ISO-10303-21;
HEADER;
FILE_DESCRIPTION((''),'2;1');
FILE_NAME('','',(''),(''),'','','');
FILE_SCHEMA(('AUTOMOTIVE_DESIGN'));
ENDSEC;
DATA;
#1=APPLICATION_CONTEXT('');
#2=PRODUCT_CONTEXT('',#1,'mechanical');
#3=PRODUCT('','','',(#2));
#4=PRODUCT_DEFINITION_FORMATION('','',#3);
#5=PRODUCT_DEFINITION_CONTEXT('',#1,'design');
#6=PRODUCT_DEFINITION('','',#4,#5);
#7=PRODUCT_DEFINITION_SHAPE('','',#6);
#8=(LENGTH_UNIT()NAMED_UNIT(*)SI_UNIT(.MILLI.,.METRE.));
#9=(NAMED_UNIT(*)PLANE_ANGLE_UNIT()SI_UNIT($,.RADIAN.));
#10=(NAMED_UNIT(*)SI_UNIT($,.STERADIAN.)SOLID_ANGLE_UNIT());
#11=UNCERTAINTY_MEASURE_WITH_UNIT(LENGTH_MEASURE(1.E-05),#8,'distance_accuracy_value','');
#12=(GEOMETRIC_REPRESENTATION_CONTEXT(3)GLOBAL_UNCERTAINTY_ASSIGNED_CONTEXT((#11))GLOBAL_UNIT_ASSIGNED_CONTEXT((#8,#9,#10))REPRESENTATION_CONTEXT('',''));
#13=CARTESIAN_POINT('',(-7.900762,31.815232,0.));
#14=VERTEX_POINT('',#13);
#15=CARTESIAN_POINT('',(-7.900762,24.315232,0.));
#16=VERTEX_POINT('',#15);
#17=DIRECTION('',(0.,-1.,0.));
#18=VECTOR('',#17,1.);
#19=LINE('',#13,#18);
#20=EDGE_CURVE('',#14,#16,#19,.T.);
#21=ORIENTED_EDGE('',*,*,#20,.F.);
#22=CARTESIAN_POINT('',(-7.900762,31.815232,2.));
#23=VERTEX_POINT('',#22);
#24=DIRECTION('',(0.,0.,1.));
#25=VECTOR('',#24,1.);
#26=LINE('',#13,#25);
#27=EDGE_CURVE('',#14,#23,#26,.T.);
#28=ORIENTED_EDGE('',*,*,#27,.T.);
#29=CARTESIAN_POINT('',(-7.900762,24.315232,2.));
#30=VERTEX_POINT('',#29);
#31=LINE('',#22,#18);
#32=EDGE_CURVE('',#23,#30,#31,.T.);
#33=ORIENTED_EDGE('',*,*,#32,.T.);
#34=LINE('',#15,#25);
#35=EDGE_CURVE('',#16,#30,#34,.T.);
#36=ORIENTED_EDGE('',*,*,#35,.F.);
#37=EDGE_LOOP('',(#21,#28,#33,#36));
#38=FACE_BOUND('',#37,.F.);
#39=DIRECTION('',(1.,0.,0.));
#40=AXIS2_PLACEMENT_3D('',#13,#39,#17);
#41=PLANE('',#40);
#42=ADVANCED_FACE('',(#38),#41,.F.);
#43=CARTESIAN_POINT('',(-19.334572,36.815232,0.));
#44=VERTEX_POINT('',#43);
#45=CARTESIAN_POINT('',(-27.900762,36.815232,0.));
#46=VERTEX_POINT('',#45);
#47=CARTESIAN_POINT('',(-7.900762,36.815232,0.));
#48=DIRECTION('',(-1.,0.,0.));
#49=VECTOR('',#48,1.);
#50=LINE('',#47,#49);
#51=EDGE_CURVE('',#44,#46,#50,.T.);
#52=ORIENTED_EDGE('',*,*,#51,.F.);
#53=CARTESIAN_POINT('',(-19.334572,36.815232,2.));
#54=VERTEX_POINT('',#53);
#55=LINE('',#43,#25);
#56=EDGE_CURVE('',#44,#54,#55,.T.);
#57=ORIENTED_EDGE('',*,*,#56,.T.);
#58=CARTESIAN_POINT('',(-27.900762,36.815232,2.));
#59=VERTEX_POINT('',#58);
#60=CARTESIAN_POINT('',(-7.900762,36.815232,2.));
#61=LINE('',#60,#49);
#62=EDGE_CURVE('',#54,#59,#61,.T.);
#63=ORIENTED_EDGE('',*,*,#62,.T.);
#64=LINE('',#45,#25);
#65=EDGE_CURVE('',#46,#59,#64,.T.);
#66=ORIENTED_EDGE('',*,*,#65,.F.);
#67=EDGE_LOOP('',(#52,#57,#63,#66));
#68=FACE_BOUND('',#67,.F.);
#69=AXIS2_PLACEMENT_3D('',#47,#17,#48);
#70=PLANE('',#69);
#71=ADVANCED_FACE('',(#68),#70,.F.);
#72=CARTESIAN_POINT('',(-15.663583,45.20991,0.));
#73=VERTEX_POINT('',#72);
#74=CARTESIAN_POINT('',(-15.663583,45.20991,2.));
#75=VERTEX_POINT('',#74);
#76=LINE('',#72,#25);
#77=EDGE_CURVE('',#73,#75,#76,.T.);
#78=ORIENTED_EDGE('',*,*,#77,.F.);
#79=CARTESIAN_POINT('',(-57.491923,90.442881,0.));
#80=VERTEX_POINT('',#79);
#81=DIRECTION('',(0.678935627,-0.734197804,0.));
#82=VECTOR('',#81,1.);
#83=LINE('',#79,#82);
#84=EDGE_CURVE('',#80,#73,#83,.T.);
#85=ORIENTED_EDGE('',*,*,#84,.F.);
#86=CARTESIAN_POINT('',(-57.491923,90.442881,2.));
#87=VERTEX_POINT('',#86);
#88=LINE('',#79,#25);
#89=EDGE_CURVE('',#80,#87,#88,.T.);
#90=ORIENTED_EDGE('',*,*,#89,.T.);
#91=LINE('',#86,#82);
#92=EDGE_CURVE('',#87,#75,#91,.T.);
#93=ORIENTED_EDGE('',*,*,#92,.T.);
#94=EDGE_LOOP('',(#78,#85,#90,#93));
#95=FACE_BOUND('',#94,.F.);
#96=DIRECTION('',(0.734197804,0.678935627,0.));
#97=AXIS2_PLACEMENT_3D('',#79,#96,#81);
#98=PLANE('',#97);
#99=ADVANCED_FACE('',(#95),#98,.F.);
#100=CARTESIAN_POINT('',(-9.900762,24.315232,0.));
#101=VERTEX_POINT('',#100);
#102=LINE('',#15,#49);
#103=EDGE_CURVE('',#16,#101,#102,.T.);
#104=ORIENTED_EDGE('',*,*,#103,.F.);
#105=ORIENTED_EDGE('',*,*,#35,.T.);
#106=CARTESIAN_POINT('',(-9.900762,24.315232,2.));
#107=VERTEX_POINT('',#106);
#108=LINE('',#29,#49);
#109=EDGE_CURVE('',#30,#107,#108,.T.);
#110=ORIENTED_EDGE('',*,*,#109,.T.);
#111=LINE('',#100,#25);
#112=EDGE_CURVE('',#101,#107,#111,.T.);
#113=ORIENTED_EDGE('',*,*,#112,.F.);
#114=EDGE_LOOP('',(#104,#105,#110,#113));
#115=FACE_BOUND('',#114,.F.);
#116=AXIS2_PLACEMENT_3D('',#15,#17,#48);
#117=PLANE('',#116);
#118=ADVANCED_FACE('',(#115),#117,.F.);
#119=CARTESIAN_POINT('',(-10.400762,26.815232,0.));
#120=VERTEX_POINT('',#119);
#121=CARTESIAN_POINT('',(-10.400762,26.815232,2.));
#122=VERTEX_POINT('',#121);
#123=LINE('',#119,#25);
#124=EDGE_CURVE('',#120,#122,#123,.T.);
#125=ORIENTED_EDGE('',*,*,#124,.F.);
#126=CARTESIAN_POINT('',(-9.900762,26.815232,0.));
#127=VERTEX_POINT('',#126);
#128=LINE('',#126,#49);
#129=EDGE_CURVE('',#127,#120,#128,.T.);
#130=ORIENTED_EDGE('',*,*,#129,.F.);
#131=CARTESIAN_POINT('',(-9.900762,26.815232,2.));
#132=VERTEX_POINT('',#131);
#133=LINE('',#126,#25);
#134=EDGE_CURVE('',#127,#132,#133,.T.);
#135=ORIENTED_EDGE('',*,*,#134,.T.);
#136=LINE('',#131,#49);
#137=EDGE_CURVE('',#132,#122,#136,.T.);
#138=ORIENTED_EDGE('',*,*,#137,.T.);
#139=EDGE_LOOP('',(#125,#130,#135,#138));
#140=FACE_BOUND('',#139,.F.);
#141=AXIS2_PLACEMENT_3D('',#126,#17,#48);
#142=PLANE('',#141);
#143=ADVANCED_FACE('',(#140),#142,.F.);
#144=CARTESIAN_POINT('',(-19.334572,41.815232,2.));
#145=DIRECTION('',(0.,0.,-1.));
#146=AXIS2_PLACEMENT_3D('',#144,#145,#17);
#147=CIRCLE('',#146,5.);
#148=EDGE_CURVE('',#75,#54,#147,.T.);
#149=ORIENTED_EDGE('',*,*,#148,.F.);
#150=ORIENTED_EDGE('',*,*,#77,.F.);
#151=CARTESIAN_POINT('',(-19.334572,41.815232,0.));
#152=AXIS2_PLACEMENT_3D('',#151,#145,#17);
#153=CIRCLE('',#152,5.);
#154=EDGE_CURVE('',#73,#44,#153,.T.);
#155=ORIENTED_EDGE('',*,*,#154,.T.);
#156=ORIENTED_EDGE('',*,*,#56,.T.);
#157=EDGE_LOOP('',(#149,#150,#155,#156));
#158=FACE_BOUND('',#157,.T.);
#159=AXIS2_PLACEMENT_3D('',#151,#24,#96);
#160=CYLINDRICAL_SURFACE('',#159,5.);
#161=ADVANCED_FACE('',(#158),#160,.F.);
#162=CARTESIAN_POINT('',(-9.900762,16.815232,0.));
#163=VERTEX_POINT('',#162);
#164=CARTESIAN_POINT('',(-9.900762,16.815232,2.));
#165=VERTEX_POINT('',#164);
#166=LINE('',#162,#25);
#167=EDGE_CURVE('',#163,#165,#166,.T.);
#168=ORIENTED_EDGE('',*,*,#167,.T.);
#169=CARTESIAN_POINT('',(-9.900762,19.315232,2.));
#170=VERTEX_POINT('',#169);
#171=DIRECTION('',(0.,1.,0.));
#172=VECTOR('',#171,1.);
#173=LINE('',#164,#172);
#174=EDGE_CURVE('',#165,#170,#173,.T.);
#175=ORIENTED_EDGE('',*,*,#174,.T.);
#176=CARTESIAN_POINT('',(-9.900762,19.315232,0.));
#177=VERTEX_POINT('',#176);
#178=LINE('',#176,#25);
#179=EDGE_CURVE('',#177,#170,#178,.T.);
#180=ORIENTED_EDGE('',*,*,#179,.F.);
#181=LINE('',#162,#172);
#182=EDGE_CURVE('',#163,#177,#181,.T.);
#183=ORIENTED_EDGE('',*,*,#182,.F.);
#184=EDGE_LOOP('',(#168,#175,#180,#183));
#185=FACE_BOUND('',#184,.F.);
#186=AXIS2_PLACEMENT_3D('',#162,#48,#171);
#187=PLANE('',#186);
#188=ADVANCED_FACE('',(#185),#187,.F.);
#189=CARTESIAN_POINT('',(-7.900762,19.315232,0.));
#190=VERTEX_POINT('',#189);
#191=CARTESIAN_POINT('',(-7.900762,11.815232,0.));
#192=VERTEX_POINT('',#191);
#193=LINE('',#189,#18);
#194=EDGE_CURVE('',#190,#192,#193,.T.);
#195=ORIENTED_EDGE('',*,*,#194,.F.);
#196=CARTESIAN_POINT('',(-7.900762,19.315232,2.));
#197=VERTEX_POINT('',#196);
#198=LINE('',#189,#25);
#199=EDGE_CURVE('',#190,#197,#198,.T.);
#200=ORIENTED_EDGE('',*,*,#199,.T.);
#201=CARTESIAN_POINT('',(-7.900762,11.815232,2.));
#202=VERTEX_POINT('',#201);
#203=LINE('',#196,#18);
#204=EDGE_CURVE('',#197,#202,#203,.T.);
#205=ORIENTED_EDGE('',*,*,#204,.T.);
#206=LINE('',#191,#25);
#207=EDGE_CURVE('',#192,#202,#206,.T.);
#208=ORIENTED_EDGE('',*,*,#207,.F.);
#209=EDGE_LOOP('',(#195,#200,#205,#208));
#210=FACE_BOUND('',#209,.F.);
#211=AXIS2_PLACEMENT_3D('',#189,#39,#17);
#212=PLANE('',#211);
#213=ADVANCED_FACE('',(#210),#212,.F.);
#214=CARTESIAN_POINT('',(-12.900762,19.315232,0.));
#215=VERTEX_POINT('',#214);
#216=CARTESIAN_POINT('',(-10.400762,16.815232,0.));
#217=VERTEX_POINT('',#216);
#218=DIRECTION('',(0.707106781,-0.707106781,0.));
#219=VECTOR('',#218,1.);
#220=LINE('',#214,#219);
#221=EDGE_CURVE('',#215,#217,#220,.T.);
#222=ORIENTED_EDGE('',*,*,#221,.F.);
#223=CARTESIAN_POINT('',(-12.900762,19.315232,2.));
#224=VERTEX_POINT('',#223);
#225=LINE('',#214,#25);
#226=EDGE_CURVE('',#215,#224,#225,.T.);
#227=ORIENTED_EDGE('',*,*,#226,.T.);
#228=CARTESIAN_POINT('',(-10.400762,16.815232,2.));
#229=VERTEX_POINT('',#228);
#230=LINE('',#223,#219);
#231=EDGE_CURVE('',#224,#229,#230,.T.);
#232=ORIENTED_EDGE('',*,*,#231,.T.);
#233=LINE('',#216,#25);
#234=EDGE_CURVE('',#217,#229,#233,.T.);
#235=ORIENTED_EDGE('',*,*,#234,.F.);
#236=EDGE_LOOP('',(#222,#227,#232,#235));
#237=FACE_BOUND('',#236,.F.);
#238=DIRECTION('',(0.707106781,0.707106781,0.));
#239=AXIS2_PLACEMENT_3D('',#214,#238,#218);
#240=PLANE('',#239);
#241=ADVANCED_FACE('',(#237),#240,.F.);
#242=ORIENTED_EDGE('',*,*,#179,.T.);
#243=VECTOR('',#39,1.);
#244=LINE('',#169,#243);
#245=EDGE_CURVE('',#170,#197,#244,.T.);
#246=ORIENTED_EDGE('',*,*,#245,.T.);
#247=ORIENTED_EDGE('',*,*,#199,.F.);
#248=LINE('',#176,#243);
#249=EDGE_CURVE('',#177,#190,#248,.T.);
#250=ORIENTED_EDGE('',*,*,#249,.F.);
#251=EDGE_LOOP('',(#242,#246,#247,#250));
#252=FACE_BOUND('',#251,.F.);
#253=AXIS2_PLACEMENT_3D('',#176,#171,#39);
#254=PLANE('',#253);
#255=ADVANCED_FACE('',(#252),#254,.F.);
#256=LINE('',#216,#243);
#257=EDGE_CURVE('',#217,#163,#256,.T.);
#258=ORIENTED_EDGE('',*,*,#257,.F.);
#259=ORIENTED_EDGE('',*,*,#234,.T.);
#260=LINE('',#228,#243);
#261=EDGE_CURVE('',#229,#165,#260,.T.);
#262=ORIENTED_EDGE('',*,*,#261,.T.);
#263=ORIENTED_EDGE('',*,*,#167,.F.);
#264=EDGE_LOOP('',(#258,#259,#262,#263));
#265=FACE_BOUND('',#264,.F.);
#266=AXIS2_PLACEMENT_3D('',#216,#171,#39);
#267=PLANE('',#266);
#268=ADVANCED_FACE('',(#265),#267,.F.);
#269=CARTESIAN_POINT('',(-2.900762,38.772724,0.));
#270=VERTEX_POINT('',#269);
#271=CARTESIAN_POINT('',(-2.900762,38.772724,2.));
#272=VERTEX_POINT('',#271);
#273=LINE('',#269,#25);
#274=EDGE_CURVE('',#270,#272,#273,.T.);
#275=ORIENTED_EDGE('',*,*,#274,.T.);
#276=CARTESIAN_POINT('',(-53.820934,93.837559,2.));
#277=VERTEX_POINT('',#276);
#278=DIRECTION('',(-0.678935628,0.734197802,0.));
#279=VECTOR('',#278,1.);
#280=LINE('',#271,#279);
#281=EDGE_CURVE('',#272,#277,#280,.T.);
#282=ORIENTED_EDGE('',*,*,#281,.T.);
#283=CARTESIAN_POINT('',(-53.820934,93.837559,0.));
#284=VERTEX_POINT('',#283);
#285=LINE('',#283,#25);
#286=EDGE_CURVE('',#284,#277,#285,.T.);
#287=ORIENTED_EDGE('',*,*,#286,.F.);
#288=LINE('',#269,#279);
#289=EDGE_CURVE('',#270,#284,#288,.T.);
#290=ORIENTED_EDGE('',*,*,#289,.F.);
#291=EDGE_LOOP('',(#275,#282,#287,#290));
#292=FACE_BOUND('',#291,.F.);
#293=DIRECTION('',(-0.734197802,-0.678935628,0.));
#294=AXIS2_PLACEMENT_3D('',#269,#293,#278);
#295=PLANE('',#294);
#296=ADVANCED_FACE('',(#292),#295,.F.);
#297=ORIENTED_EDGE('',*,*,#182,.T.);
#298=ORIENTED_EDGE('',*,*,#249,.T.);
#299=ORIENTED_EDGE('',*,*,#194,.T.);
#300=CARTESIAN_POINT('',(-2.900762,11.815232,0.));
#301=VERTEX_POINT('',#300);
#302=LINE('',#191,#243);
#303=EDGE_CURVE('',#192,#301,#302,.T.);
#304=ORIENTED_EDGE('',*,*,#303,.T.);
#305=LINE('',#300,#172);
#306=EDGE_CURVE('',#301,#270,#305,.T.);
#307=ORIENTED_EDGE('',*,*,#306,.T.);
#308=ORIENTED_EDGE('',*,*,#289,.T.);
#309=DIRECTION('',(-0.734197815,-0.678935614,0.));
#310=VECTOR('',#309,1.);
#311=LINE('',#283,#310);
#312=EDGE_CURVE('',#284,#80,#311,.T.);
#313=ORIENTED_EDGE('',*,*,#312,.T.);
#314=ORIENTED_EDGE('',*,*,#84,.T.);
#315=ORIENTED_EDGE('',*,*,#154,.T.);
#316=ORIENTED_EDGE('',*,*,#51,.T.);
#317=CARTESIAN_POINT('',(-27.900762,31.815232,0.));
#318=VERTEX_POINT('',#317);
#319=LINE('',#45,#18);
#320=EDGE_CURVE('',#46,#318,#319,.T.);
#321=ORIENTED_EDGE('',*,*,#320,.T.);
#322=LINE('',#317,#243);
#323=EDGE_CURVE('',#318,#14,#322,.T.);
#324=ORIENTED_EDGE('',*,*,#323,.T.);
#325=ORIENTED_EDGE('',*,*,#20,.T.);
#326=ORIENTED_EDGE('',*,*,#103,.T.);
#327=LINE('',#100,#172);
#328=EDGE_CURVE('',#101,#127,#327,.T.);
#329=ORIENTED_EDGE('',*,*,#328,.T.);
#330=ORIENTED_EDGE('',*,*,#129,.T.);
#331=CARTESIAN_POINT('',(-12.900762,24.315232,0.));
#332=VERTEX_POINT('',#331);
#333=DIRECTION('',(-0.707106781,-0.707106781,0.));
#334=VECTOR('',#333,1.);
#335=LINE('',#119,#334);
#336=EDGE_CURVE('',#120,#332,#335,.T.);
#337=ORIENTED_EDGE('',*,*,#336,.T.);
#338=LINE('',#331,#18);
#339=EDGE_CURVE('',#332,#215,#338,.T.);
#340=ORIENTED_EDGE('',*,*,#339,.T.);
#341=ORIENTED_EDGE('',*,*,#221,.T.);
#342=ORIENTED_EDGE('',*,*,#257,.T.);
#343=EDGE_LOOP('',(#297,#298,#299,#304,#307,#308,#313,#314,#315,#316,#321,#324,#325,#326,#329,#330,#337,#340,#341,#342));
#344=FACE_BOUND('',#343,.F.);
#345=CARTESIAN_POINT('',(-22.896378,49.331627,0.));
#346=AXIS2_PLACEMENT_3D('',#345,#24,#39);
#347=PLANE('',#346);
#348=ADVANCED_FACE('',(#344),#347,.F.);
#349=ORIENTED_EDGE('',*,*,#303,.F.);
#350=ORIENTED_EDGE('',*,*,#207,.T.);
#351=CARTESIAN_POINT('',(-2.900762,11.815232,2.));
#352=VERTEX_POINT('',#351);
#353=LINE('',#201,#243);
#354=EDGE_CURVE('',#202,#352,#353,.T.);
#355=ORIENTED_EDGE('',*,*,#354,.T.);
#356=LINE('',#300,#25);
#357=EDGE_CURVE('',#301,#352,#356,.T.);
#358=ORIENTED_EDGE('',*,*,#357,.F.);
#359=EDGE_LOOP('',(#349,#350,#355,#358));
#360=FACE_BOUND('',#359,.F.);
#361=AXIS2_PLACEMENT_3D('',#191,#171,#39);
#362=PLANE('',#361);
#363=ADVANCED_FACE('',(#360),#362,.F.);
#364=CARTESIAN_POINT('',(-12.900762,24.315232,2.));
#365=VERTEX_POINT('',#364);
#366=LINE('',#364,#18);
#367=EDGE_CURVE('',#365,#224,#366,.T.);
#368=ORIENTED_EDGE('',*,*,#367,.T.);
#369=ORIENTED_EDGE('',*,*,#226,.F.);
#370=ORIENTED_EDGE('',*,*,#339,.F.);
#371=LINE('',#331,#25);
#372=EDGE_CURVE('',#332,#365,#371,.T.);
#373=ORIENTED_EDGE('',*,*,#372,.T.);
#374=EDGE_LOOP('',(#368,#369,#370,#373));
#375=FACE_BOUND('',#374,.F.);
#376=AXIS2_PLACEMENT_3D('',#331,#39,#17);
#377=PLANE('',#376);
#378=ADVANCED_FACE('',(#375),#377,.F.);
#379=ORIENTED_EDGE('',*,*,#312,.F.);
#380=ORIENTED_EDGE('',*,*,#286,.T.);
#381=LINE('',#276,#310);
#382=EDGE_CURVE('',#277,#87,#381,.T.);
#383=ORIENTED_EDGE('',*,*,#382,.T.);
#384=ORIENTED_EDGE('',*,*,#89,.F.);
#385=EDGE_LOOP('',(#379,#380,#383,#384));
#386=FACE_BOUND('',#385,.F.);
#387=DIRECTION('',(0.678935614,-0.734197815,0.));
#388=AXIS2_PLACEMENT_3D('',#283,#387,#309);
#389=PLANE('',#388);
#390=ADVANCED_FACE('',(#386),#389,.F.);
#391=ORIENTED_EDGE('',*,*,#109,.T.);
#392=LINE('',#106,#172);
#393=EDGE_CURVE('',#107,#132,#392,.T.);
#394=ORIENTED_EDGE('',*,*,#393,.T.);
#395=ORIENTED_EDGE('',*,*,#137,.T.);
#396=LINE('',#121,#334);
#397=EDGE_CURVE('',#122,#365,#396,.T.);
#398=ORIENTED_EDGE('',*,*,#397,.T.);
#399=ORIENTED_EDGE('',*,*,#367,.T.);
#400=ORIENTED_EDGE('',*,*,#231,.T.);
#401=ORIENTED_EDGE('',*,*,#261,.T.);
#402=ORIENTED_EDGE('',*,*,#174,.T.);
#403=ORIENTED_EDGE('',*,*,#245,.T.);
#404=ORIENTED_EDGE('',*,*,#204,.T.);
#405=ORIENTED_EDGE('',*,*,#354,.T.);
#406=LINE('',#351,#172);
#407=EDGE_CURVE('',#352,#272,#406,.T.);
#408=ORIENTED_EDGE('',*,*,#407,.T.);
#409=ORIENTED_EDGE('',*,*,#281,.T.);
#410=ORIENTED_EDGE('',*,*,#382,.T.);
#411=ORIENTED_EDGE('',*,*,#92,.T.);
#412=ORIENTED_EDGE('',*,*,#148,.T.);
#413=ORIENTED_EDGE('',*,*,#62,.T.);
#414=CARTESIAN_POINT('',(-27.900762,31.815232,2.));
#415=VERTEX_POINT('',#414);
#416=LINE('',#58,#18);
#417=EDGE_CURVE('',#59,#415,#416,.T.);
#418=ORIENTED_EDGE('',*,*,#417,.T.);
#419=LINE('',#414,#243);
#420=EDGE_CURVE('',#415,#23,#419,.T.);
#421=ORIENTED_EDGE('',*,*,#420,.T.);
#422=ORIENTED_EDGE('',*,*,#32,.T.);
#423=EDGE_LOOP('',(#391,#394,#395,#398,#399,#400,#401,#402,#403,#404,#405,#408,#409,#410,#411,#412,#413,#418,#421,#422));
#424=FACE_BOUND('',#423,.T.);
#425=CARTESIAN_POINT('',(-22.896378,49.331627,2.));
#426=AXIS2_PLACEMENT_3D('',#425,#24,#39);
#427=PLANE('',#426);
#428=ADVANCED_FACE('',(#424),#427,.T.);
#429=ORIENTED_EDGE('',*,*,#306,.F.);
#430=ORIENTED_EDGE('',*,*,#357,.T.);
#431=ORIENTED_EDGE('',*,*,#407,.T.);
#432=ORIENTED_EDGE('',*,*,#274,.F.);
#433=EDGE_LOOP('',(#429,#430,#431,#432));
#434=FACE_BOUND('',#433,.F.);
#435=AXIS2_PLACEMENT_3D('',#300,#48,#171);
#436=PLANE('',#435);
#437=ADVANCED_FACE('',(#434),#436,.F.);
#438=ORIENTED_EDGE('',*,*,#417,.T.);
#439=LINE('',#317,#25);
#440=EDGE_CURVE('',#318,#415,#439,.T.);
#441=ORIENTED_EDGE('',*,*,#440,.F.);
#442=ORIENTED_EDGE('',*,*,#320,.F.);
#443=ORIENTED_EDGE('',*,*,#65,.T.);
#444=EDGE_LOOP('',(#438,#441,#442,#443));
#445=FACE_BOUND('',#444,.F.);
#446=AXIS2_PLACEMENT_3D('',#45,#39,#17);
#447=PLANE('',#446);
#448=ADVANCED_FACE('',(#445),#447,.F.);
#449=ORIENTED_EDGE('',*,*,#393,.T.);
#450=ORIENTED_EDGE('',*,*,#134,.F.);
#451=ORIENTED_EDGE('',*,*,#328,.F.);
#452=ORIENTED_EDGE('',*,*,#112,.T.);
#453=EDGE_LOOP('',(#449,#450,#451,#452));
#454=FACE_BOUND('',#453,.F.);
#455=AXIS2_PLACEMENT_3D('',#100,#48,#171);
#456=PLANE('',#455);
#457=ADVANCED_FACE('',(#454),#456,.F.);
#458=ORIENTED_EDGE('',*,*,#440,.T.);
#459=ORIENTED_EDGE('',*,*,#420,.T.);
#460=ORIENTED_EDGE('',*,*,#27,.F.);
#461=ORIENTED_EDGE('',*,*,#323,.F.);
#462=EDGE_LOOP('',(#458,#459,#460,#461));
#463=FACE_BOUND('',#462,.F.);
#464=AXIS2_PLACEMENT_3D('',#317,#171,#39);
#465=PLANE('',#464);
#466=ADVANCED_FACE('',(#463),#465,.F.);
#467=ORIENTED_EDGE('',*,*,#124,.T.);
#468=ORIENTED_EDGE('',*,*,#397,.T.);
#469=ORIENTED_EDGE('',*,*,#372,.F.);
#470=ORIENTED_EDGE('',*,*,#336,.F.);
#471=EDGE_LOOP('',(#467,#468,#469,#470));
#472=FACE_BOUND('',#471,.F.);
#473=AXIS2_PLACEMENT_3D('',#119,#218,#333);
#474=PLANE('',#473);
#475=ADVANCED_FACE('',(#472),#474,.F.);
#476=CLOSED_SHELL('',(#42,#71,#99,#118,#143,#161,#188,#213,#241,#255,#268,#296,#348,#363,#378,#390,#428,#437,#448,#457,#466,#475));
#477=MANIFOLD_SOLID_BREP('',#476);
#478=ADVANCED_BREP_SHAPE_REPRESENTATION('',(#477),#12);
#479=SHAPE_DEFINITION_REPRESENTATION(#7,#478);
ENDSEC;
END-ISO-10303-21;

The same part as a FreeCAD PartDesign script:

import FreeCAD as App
import Part
import Sketcher
from FreeCAD import Vector


def edges_at(feature, points):
    """Names of the edges that pass closest to the given points."""
    edges = feature.Shape.Edges
    near = lambda p: min(range(len(edges)), key=lambda i: edges[i].distToShape(Part.Vertex(*p))[0])
    return sorted({f"Edge{near(p) + 1}" for p in points})


def add_polygon(sketch, points):
    """Adds a closed chain of lines whose ends are joined by coincident constraints."""
    first, n = sketch.GeometryCount, len(points)
    for a, b in zip(points, points[1:] + points[:1]):
        sketch.addGeometry(Part.LineSegment(App.Vector(*a, 0), App.Vector(*b, 0)), False)
    for i in range(n):
        sketch.addConstraint(Sketcher.Constraint("Coincident", first + i, 2, first + (i + 1) % n, 1))

doc = App.newDocument("Part")
params = doc.addObject("Spreadsheet::Sheet", "Params")
for row, (alias, value) in enumerate([
    ("sketch1_width", "20 mm"),
    ("sketch1_width2", "2 mm"),
    ("sketch1_width3", "5 mm"),
    ("sketch1_length", "75 mm"),
    ("sketch1_length2", "5 mm"),
    ("pad1_length", "2 mm"),
    ("fillet_radius", "5 mm"),
], start=1):
    params.set(f"A{row}", alias)
    params.set(f"B{row}", "=" + value)
    params.setAlias(f"B{row}", alias)

body = doc.addObject("PartDesign::Body", "Body")

# Sketch on XY plane
sketch1 = doc.addObject("Sketcher::SketchObject", "Sketch")
body.addObject(sketch1)
sketch1.AttachmentSupport = (doc.XY_Plane, [""])
sketch1.MapMode = "FlatFace"
add_polygon(sketch1, [(-27.9, 36.8), (-27.9, 31.8), (-7.9, 31.8), (-7.9, 24.3), (-9.9, 24.3), (-9.9, 26.8), (-10.4, 26.8), (-12.9, 24.3), (-12.9, 19.3), (-10.4, 16.8), (-9.9, 16.8), (-9.9, 19.3), (-7.9, 19.3), (-7.9, 11.8), (-2.9, 11.8), (-2.9, 38.8), (-53.8, 93.8), (-57.5, 90.4), (-7.9, 36.8)])  # lines 0-18
sketch1.addConstraint([
    Sketcher.Constraint("Vertical", 0),
    Sketcher.Constraint("Horizontal", 1),
    Sketcher.Constraint("Vertical", 2),
    Sketcher.Constraint("Horizontal", 3),
    Sketcher.Constraint("Vertical", 4),
    Sketcher.Constraint("Horizontal", 5),
    Sketcher.Constraint("Vertical", 7),
    Sketcher.Constraint("Horizontal", 9),
    Sketcher.Constraint("Vertical", 10),
    Sketcher.Constraint("Horizontal", 11),
    Sketcher.Constraint("Vertical", 12),
    Sketcher.Constraint("Horizontal", 13),
    Sketcher.Constraint("Vertical", 14),
    Sketcher.Constraint("Horizontal", 18),
    Sketcher.Constraint("Perpendicular", 6, 8),
    Sketcher.Constraint("Perpendicular", 15, 16),
    Sketcher.Constraint("Perpendicular", 16, 17),
    Sketcher.Constraint("Horizontal", 3, 2, 6, 2),
    Sketcher.Constraint("Horizontal", 7, 2, 10, 2),
    Sketcher.Constraint("Vertical", 5, 2, 8, 2),
    Sketcher.Constraint("Vertical", 4, 2, 9, 2),
    Sketcher.Constraint("Vertical", 2, 2, 11, 2),
    Sketcher.Constraint("Vertical", 12, 2, 17, 2),
    Sketcher.Constraint("Equal", 13, 0),
    Sketcher.Constraint("Equal", 0, 7),
    Sketcher.Constraint("Equal", 4, 10),
    Sketcher.Constraint("Equal", 2, 12),
    Sketcher.Constraint("DistanceX", 1, 1, 1, 2, 20.0),
    Sketcher.Constraint("DistanceX", 3, 2, 3, 1, 2.0),
    Sketcher.Constraint("DistanceX", 13, 1, 13, 2, 5.0),
    Sketcher.Constraint("Distance", 15, 75.0),
    Sketcher.Constraint("Distance", 16, 5.0),
    Sketcher.Constraint("DistanceX", 5, 2, 5, 1, 0.5),
    Sketcher.Constraint("DistanceY", 2, 2, 2, 1, 7.5),
    Sketcher.Constraint("DistanceY", 4, 1, 4, 2, 2.5),
    Sketcher.Constraint("DistanceY", 14, 1, 14, 2, 26.957492),
    Sketcher.Constraint("DistanceX", 13, 2, -1, 1, 2.900762),
    Sketcher.Constraint("DistanceY", -1, 1, 15, 2, 93.837559),
])
sketch1.setExpression("Constraints[46]", "Params.sketch1_width")
sketch1.setExpression("Constraints[47]", "Params.sketch1_width2")
sketch1.setExpression("Constraints[48]", "Params.sketch1_width3")
sketch1.setExpression("Constraints[49]", "Params.sketch1_length")
sketch1.setExpression("Constraints[50]", "Params.sketch1_length2")
pad1 = doc.addObject("PartDesign::Pad", "Pad")
body.addObject(pad1)
pad1.Profile = sketch1
pad1.setExpression("Length", "Params.pad1_length")
doc.recompute()

fillet = doc.addObject("PartDesign::Fillet", "Fillet")
body.addObject(fillet)
fillet.Base = (pad1, edges_at(pad1, [(-7.901, 36.815, 1)]))
fillet.setExpression("Radius", "Params.fillet_radius")

doc.recompute()
